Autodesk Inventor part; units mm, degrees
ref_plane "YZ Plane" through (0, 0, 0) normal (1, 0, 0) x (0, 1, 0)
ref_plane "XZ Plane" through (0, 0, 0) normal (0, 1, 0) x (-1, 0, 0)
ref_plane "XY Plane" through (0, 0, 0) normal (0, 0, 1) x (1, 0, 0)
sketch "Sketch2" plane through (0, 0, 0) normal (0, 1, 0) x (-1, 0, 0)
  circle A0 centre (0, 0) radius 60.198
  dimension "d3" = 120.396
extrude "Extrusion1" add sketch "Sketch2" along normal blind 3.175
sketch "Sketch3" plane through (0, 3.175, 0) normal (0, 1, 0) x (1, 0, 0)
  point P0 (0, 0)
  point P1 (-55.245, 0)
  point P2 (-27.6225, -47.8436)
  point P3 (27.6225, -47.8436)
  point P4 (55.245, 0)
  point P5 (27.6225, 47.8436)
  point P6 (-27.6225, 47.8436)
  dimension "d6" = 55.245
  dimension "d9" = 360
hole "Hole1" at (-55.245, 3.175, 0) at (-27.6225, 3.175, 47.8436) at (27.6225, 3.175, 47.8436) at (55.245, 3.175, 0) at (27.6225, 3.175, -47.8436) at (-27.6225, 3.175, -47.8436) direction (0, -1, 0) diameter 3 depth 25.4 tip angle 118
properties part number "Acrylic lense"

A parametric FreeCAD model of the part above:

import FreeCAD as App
import Part
import Sketcher
from FreeCAD import Vector
Q = App.Units.Quantity

doc = App.newDocument("Part")
body = doc.addObject("PartDesign::Body", "Body")

# Sketch on XZ plane
sketch1 = body.newObject("Sketcher::SketchObject", "Sketch")
sketch1.AttachmentSupport = (doc.getObject("XZ_Plane"), [""])
sketch1.MapMode = "FlatFace"
sketch1.addGeometry(Part.Circle(Vector(0, 0, 0), Vector(0, 0, 1), 60), False)
sketch1.addConstraint(Sketcher.Constraint("Coincident", 0, 3, -1, 1))
sketch1.addConstraint(Sketcher.Constraint("Diameter", 0, Q("4.74 in")))
pad1 = body.newObject("PartDesign::Pad", "Pad")
pad1.Profile = sketch1
pad1.Length = Q("0.125 in")
pad1.Reversed = True

# Sketch on XZ plane
sketch2 = body.newObject("Sketcher::SketchObject", "Sketch001")
sketch2.AttachmentSupport = (doc.getObject("XZ_Plane"), [""])
sketch2.MapMode = "FlatFace"
sketch2.AttachmentOffset = App.Placement(Vector(0, 0, -0.125 * 25.4), App.Rotation())
sketch2.addGeometry(Part.Circle(Vector(-55.2, 0, 0), Vector(0, 0, 1), 1.5), False)
sketch2.addGeometry(Part.Circle(Vector(-27.6, 47.8, 0), Vector(0, 0, 1), 1.5), False)
sketch2.addGeometry(Part.Circle(Vector(27.6, 47.8, 0), Vector(0, 0, 1), 1.5), False)
sketch2.addGeometry(Part.Circle(Vector(55.2, 0, 0), Vector(0, 0, 1), 1.5), False)
sketch2.addGeometry(Part.Circle(Vector(27.6, -47.8, 0), Vector(0, 0, 1), 1.5), False)
sketch2.addGeometry(Part.Circle(Vector(-27.6, -47.8, 0), Vector(0, 0, 1), 1.5), False)
sketch2.addConstraint(Sketcher.Constraint("Equal", 0, 1))
sketch2.addConstraint(Sketcher.Constraint("Equal", 1, 2))
sketch2.addConstraint(Sketcher.Constraint("Equal", 2, 3))
sketch2.addConstraint(Sketcher.Constraint("Equal", 3, 4))
sketch2.addConstraint(Sketcher.Constraint("Equal", 4, 5))
sketch2.addConstraint(Sketcher.Constraint("Symmetric", 0, 3, 3, 3, -1, 1))
sketch2.addConstraint(Sketcher.Constraint("Symmetric", 1, 3, 4, 3, -1, 1))
sketch2.addConstraint(Sketcher.Constraint("Symmetric", 2, 3, 5, 3, -1, 1))
sketch2.addConstraint(Sketcher.Constraint("Symmetric", 1, 3, 2, 3, -2))
sketch2.addConstraint(Sketcher.Constraint("PointOnObject", 0, 3, -1))
sketch2.addConstraint(Sketcher.Constraint("Diameter", 0, Q("0.1181 in")))
sketch2.addConstraint(Sketcher.Constraint("DistanceX", 0, 3, 3, 3, Q("4.35 in")))
sketch2.addConstraint(Sketcher.Constraint("DistanceX", 1, 3, 2, 3, Q("2.175 in")))
sketch2.addConstraint(Sketcher.Constraint("DistanceY", -1, 1, 1, 3, Q("1.8836 in")))
doc.recompute()
hole = body.newObject("PartDesign::Hole", "Hole")
hole.Profile = sketch2
hole.ThreadType = "None"
hole.Diameter = Q("0.1181102 in")
hole.DepthType = "Dimension"
hole.Depth = Q("1 in")
hole.DrillPoint = "Angled"
hole.DrillPointAngle = 118
hole.Reversed = True

doc.recompute()
